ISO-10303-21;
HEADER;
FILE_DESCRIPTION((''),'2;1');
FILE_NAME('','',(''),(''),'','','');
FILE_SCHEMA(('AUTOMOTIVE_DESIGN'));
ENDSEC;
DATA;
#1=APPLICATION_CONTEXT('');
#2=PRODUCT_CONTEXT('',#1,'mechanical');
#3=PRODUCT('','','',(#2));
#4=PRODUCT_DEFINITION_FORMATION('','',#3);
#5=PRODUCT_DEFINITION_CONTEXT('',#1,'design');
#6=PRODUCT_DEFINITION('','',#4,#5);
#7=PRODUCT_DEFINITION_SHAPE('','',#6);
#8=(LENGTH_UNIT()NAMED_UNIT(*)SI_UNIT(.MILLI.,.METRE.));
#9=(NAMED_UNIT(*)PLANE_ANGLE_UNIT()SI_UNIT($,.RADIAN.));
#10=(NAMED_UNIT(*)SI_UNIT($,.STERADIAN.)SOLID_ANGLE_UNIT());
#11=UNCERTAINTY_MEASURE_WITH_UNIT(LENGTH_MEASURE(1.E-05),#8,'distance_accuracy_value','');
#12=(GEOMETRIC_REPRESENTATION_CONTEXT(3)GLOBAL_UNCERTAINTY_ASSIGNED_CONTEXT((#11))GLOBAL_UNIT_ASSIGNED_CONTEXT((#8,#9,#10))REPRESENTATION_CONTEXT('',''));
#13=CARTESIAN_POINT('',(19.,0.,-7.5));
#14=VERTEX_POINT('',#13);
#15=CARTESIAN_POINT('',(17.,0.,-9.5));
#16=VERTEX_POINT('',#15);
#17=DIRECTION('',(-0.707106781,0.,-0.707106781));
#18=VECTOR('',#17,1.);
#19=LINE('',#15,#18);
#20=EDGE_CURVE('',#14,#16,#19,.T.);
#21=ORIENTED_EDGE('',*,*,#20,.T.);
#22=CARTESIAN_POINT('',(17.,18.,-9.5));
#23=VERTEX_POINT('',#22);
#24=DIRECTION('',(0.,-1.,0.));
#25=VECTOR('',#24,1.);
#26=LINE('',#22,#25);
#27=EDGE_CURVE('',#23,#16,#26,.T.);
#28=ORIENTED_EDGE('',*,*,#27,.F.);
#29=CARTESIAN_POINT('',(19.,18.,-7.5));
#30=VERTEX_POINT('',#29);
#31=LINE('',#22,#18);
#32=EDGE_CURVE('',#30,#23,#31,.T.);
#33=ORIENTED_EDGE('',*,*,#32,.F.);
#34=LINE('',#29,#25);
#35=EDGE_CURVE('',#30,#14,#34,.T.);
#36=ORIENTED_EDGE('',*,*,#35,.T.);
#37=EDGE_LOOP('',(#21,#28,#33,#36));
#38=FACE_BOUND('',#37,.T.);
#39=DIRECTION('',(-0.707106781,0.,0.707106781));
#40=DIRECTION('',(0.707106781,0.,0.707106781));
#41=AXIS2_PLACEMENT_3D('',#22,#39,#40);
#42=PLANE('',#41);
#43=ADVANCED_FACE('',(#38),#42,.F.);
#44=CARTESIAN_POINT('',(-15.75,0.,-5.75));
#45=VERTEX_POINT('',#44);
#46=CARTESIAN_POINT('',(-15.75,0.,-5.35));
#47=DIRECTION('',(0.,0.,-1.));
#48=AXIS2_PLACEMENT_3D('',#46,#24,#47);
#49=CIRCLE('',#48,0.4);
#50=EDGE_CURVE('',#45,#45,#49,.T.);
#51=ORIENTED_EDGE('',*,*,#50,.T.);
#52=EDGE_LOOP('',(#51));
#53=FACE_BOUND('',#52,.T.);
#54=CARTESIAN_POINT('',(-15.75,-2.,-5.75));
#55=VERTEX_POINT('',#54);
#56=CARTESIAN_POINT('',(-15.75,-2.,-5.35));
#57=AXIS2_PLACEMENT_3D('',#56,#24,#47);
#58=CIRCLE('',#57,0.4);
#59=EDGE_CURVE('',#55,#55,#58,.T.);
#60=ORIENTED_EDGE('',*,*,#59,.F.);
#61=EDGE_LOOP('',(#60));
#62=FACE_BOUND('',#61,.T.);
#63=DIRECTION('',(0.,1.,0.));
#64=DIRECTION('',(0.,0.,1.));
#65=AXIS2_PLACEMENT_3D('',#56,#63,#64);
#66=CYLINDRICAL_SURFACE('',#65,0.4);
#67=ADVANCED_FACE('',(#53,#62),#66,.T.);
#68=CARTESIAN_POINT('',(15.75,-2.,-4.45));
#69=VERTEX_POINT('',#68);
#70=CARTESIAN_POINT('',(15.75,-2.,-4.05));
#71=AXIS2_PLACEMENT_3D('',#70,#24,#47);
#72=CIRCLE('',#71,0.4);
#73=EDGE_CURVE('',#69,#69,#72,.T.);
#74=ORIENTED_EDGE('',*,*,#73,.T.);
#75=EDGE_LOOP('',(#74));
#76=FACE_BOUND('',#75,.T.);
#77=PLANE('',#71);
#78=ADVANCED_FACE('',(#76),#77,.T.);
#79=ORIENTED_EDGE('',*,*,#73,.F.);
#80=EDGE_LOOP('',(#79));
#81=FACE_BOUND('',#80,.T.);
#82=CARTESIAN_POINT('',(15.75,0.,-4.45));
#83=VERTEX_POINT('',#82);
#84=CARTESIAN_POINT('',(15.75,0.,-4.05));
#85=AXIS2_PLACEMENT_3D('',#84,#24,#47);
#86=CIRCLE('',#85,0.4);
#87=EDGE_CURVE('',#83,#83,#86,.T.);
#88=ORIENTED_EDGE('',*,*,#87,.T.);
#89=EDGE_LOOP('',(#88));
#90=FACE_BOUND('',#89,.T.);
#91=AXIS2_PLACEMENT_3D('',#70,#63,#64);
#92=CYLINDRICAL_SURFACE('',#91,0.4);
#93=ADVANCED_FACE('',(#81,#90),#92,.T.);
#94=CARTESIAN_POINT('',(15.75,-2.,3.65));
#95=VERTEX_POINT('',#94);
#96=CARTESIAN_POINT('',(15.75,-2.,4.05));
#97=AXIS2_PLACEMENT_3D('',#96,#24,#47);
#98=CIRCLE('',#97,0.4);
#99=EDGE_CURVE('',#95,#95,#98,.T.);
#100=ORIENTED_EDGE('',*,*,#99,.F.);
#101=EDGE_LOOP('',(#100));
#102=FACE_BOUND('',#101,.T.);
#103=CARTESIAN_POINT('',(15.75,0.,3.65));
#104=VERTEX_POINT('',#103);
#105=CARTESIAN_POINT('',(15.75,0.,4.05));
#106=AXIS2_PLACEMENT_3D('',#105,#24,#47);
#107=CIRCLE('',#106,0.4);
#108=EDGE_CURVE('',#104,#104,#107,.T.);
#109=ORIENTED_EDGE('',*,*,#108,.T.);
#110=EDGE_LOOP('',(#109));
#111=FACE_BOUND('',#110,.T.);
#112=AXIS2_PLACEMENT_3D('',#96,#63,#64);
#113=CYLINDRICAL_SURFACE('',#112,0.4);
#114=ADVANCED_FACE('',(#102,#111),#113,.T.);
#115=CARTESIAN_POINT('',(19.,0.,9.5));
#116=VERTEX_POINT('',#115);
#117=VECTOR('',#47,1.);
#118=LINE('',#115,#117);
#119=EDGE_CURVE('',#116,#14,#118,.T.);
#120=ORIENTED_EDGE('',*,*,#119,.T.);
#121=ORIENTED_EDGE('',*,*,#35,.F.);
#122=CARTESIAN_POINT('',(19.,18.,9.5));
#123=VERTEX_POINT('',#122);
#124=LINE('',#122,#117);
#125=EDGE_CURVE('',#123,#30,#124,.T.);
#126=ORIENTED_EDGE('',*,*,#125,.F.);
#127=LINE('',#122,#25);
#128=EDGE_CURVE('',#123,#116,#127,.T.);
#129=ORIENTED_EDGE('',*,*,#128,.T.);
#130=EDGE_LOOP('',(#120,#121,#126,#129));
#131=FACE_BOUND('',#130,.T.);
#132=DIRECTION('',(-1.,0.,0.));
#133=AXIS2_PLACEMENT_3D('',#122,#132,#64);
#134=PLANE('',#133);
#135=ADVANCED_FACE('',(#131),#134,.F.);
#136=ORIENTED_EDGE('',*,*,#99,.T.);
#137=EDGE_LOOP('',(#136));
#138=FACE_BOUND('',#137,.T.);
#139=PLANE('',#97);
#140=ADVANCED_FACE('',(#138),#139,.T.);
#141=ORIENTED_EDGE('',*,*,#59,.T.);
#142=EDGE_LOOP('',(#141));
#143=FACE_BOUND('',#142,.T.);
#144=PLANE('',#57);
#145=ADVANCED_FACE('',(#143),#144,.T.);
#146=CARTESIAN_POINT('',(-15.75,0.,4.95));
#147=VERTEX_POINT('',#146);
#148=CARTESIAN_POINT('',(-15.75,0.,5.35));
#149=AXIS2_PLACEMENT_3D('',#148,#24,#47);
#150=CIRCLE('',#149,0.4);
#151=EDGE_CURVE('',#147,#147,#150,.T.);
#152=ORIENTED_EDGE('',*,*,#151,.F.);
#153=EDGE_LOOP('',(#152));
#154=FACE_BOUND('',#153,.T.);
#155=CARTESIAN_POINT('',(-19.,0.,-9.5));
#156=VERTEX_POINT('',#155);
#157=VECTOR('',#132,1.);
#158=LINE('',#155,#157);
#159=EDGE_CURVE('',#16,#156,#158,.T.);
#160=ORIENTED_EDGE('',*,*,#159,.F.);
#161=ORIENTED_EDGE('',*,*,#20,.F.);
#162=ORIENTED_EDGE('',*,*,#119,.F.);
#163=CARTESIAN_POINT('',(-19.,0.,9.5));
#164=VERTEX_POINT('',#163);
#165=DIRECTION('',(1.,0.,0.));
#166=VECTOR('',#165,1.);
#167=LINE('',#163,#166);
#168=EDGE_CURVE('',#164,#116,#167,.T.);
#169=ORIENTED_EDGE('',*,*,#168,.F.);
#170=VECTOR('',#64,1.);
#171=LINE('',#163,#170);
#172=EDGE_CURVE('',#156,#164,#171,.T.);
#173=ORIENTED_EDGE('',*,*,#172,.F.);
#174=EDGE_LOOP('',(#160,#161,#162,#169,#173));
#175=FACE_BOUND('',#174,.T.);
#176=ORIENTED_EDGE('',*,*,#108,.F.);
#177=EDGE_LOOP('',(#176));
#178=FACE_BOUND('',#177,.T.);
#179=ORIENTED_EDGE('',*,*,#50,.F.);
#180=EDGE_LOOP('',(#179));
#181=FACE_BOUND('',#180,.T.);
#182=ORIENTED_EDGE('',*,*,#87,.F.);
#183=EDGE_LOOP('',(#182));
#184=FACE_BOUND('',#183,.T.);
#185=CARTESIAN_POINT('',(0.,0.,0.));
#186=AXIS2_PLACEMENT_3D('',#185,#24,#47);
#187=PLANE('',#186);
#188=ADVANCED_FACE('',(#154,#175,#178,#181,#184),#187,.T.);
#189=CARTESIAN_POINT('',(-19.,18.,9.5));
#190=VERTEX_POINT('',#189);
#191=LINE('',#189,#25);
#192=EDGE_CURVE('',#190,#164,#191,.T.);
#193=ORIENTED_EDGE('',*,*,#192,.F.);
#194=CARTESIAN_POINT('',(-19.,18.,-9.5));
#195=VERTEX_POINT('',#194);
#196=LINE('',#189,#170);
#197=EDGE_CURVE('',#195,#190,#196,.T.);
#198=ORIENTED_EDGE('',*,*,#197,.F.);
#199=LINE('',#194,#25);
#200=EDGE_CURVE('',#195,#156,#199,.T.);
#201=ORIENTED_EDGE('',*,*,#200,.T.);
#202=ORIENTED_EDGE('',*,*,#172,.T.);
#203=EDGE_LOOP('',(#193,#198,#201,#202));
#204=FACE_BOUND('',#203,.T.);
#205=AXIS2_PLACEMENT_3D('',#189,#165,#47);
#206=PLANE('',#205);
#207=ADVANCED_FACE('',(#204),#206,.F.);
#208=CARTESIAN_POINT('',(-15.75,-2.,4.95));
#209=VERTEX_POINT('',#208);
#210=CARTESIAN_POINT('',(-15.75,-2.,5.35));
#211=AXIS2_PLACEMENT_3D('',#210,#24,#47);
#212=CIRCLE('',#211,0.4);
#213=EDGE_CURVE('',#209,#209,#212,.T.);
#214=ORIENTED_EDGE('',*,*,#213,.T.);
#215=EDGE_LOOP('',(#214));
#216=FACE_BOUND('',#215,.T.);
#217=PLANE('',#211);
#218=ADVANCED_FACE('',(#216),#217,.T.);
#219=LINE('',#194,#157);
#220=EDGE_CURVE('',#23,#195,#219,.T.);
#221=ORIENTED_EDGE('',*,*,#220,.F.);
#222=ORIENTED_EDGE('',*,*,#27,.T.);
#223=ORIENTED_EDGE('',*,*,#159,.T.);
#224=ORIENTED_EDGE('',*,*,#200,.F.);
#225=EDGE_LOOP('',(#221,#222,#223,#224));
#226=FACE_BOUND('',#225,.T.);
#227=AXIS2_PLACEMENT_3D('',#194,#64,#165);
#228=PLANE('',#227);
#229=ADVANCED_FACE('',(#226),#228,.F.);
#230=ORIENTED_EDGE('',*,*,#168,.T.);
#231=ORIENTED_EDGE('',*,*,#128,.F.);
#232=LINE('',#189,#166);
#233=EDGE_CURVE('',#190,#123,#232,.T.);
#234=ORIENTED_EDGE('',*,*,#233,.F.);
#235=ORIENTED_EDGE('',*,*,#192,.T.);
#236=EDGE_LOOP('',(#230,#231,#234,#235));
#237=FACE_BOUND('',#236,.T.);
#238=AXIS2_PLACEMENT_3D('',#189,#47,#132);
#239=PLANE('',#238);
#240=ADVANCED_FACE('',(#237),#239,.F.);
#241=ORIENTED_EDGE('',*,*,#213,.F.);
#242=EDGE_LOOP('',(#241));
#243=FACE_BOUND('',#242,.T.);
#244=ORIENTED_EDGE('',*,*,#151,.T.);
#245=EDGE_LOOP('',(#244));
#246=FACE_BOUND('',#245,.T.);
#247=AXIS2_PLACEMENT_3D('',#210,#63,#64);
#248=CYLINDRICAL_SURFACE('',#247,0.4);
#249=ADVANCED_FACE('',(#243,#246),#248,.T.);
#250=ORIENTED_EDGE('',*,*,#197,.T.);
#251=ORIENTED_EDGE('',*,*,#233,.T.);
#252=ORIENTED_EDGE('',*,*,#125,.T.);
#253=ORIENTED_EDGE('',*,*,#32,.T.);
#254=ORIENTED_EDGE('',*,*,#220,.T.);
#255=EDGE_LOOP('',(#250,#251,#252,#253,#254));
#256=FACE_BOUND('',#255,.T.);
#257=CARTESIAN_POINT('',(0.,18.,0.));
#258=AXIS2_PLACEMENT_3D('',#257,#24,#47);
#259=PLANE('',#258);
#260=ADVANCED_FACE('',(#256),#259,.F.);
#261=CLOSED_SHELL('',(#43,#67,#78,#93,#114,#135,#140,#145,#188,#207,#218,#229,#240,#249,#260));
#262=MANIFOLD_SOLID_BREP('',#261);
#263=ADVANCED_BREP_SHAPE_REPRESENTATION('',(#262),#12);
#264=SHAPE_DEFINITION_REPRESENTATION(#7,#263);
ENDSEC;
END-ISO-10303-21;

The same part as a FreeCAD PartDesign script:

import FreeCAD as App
import Part
import Sketcher

V = App.Vector

doc = App.newDocument("Part")
params = doc.addObject("Spreadsheet::Sheet", "Params")
for row, (alias, value) in enumerate([
    ("sketch1_width", "36 mm"),
    ("sketch1_width2", "38 mm"),
    ("sketch1_height", "17 mm"),
    ("sketch1_height2", "19 mm"),
    ("pad1_length", "18 mm"),
    ("sketch2_diameter", "0.8 mm"),
    ("pad2_length", "2 mm"),
], start=1):
    params.set(f"A{row}", alias)
    params.set(f"B{row}", "=" + value)
    params.setAlias(f"B{row}", alias)

body = doc.addObject("PartDesign::Body", "Body")

sketch1 = body.newObject("Sketcher::SketchObject", "Sketch")
sketch1.AttachmentSupport = (doc.getObject("XZ_Plane"), [""])
sketch1.MapMode = "FlatFace"
sketch1.addGeometry(Part.LineSegment(V(19, 9.5, 0), V(19, -7.5, 0)), False)
sketch1.addGeometry(Part.LineSegment(V(19, -7.5, 0), V(17, -9.5, 0)), False)
sketch1.addGeometry(Part.LineSegment(V(17, -9.5, 0), V(-19, -9.5, 0)), False)
sketch1.addGeometry(Part.LineSegment(V(-19, -9.5, 0), V(-19, 9.5, 0)), False)
sketch1.addGeometry(Part.LineSegment(V(-19, 9.5, 0), V(19, 9.5, 0)), False)
sketch1.addConstraint(Sketcher.Constraint("Coincident", 0, 2, 1, 1))
sketch1.addConstraint(Sketcher.Constraint("Coincident", 1, 2, 2, 1))
sketch1.addConstraint(Sketcher.Constraint("Coincident", 2, 2, 3, 1))
sketch1.addConstraint(Sketcher.Constraint("Coincident", 3, 2, 4, 1))
sketch1.addConstraint(Sketcher.Constraint("Coincident", 4, 2, 0, 1))
sketch1.addConstraint(Sketcher.Constraint("Vertical", 0))
sketch1.addConstraint(Sketcher.Constraint("Horizontal", 2))
sketch1.addConstraint(Sketcher.Constraint("Vertical", 3))
sketch1.addConstraint(Sketcher.Constraint("Horizontal", 4))
sketch1.addConstraint(Sketcher.Constraint("Symmetric", 2, 2, 4, 2, -1, 1))
sketch1.addConstraint(Sketcher.Constraint("DistanceX", 2, 2, 2, 1, 36.0))
sketch1.addConstraint(Sketcher.Constraint("DistanceX", 4, 1, 4, 2, 38.0))
sketch1.addConstraint(Sketcher.Constraint("DistanceY", 0, 2, 0, 1, 17.0))
sketch1.addConstraint(Sketcher.Constraint("DistanceY", 3, 1, 3, 2, 19.0))
sketch1.setExpression("Constraints[10]", "Params.sketch1_width")
sketch1.setExpression("Constraints[11]", "Params.sketch1_width2")
sketch1.setExpression("Constraints[12]", "Params.sketch1_height")
sketch1.setExpression("Constraints[13]", "Params.sketch1_height2")
pad1 = body.newObject("PartDesign::Pad", "Pad")
pad1.Profile = sketch1
pad1.setExpression("Length", "Params.pad1_length")
pad1.Reversed = True

sketch2 = body.newObject("Sketcher::SketchObject", "Sketch001")
sketch2.AttachmentSupport = (doc.getObject("XZ_Plane"), [""])
sketch2.MapMode = "FlatFace"
sketch2.addGeometry(Part.Circle(V(-15.75, 5.35, 0), V(0, 0, 1), 0.4), False)
sketch2.addGeometry(Part.Circle(V(-15.75, -5.35, 0), V(0, 0, 1), 0.4), False)
sketch2.addGeometry(Part.Circle(V(15.75, 4.05, 0), V(0, 0, 1), 0.4), False)
sketch2.addGeometry(Part.Circle(V(15.75, -4.05, 0), V(0, 0, 1), 0.4), False)
sketch2.addConstraint(Sketcher.Constraint("Equal", 0, 1))
sketch2.addConstraint(Sketcher.Constraint("Equal", 1, 2))
sketch2.addConstraint(Sketcher.Constraint("Equal", 2, 3))
sketch2.addConstraint(Sketcher.Constraint("Symmetric", 0, 3, 1, 3, -1))
sketch2.addConstraint(Sketcher.Constraint("Symmetric", 2, 3, 3, 3, -1))
sketch2.addConstraint(Sketcher.Constraint("Diameter", 0, 0.8))
sketch2.addConstraint(Sketcher.Constraint("DistanceY", 1, 3, 0, 3, 10.7))
sketch2.addConstraint(Sketcher.Constraint("DistanceX", 0, 3, 2, 3, 31.5))
sketch2.addConstraint(Sketcher.Constraint("DistanceY", 2, 3, 0, 3, 1.3))
sketch2.addConstraint(Sketcher.Constraint("DistanceX", 0, 3, -1, 1, 15.75))
sketch2.setExpression("Constraints[5]", "Params.sketch2_diameter")
pad2 = body.newObject("PartDesign::Pad", "Pad001")
pad2.Profile = sketch2
pad2.setExpression("Length", "Params.pad2_length")

doc.recompute()
